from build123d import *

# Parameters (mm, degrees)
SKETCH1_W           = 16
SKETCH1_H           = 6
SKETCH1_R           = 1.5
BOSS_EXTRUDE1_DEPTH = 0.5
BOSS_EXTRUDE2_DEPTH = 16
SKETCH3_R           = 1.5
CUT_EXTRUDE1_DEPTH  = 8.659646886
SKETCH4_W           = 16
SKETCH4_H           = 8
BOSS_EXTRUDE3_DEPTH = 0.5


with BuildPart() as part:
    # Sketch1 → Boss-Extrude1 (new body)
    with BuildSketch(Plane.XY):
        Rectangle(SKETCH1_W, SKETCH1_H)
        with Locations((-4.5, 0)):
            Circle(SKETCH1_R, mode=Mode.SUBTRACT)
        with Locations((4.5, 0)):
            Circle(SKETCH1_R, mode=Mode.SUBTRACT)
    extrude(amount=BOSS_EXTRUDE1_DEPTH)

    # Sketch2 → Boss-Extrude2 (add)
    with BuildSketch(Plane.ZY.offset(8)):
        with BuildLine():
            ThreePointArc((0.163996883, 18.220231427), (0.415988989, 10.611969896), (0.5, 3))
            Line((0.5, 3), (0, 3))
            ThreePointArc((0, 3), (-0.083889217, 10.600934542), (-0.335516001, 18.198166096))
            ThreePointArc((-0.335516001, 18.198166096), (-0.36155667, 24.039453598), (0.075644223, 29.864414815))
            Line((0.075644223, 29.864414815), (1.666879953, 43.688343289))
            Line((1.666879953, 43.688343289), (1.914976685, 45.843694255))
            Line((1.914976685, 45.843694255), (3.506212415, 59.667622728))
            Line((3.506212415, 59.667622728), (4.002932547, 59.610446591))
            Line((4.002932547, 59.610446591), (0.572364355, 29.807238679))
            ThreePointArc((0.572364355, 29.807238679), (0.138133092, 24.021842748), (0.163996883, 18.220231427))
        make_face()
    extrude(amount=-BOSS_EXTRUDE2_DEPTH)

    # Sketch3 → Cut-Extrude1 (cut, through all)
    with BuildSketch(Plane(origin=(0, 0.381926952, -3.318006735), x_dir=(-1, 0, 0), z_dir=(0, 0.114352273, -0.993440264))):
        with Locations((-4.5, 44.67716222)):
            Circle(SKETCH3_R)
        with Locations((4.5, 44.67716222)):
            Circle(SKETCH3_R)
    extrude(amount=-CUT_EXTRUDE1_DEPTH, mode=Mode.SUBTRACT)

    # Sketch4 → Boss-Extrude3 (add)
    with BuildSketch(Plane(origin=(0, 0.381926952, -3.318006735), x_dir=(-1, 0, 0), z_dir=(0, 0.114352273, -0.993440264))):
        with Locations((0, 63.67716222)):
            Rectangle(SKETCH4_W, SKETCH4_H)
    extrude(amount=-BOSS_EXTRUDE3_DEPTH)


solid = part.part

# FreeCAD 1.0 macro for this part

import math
import FreeCAD as App
import Part
import Sketcher
from FreeCAD import Vector
Q = App.Units.Quantity

doc = App.newDocument("Part")
body = doc.addObject("PartDesign::Body", "Body")

sketch1 = body.newObject("Sketcher::SketchObject", "Sketch")
sketch1.AttachmentSupport = (doc.getObject("XY_Plane"), [""])
sketch1.MapMode = "FlatFace"
sketch1.addGeometry(Part.LineSegment(Vector(-8, 3, 0), Vector(-8, -3, 0)), False)
sketch1.addGeometry(Part.LineSegment(Vector(-8, -3, 0), Vector(8, -3, 0)), False)
sketch1.addGeometry(Part.LineSegment(Vector(8, -3, 0), Vector(8, 3, 0)), False)
sketch1.addGeometry(Part.LineSegment(Vector(8, 3, 0), Vector(-8, 3, 0)), False)
sketch1.addGeometry(Part.Circle(Vector(-4.5, 0, 0), Vector(0, 0, 1), 1.5), False)
sketch1.addGeometry(Part.Circle(Vector(4.5, 0, 0), Vector(0, 0, 1), 1.5), False)
sketch1.addConstraint(Sketcher.Constraint("Coincident", 0, 2, 1, 1))
sketch1.addConstraint(Sketcher.Constraint("Coincident", 1, 2, 2, 1))
sketch1.addConstraint(Sketcher.Constraint("Coincident", 2, 2, 3, 1))
sketch1.addConstraint(Sketcher.Constraint("Coincident", 3, 2, 0, 1))
sketch1.addConstraint(Sketcher.Constraint("Vertical", 0))
sketch1.addConstraint(Sketcher.Constraint("Horizontal", 1))
sketch1.addConstraint(Sketcher.Constraint("Vertical", 2))
sketch1.addConstraint(Sketcher.Constraint("Horizontal", 3))
sketch1.addConstraint(Sketcher.Constraint("Equal", 4, 5))
sketch1.addConstraint(Sketcher.Constraint("Symmetric", 4, 3, 5, 3, -1, 1))
sketch1.addConstraint(Sketcher.Constraint("Symmetric", 0, 2, 2, 2, -1, 1))
sketch1.addConstraint(Sketcher.Constraint("PointOnObject", 4, 3, -1))
sketch1.addConstraint(Sketcher.Constraint("Diameter", 4, Q("3 mm")))
sketch1.addConstraint(Sketcher.Constraint("DistanceX", 1, 1, 1, 2, Q("16 mm")))
sketch1.addConstraint(Sketcher.Constraint("DistanceY", 0, 2, 0, 1, Q("6 mm")))
sketch1.addConstraint(Sketcher.Constraint("DistanceX", 4, 3, 5, 3, Q("9 mm")))
pad1 = body.newObject("PartDesign::Pad", "Pad")
pad1.Profile = sketch1
pad1.Length = 0.5

sketch2 = body.newObject("Sketcher::SketchObject", "Sketch001")
sketch2.AttachmentSupport = (doc.getObject("YZ_Plane"), [""])
sketch2.MapMode = "FlatFace"
sketch2.AttachmentOffset = App.Placement(Vector(0, 0, -8), App.Rotation())
sketch2.addGeometry(Part.ArcOfCircle(Part.Circle(Vector(3, -344.4, 0), Vector(0, 0, 1), 344.9), math.radians(87.47), math.radians(90)), False)
sketch2.addGeometry(Part.ArcOfCircle(Part.Circle(Vector(21.4, 73.2, 0), Vector(0, 0, 1), 73.1), math.radians(-92.53), math.radians(-83.43)), False)
sketch2.addGeometry(Part.LineSegment(Vector(29.8, 0.6, 0), Vector(59.6, 4, 0)), False)
sketch2.addGeometry(Part.LineSegment(Vector(59.6, 4, 0), Vector(59.7, 3.5, 0)), False)
sketch2.addGeometry(Part.LineSegment(Vector(59.7, 3.5, 0), Vector(45.8, 1.9, 0)), False)
sketch2.addGeometry(Part.LineSegment(Vector(45.8, 1.9, 0), Vector(43.7, 1.7, 0)), False)
sketch2.addGeometry(Part.LineSegment(Vector(43.7, 1.7, 0), Vector(29.9, 0.1, 0)), False)
sketch2.addGeometry(Part.ArcOfCircle(Part.Circle(Vector(21.4, 73.2, 0), Vector(0, 0, 1), 73.6), math.radians(-92.53), math.radians(-83.43)), False)
sketch2.addGeometry(Part.ArcOfCircle(Part.Circle(Vector(3, -344.4, 0), Vector(0, 0, 1), 344.4), math.radians(87.47), math.radians(90)), False)
sketch2.addGeometry(Part.LineSegment(Vector(3, 0, 0), Vector(3, 0.5, 0)), False)
sketch2.addConstraint(Sketcher.Constraint("Tangent", 0, 1, 1, 1))
sketch2.addConstraint(Sketcher.Constraint("Tangent", 1, 2, 2, 1))
sketch2.addConstraint(Sketcher.Constraint("Coincident", 2, 2, 3, 1))
sketch2.addConstraint(Sketcher.Constraint("Coincident", 3, 2, 4, 1))
sketch2.addConstraint(Sketcher.Constraint("Coincident", 4, 2, 5, 1))
sketch2.addConstraint(Sketcher.Constraint("Coincident", 5, 2, 6, 1))
sketch2.addConstraint(Sketcher.Constraint("Tangent", 6, 2, 7, 2))
sketch2.addConstraint(Sketcher.Constraint("Tangent", 7, 1, 8, 1))
sketch2.addConstraint(Sketcher.Constraint("Coincident", 8, 2, 9, 1))
sketch2.addConstraint(Sketcher.Constraint("Coincident", 9, 2, 0, 2))
sketch2.addConstraint(Sketcher.Constraint("Vertical", 9))
sketch2.addConstraint(Sketcher.Constraint("Coincident", 7, 3, 1, 3))
sketch2.addConstraint(Sketcher.Constraint("Coincident", 8, 3, 0, 3))
sketch2.addConstraint(Sketcher.Constraint("PointOnObject", 8, 2, -1))
sketch2.addConstraint(Sketcher.Constraint("Perpendicular", 2, 3))
sketch2.addConstraint(Sketcher.Constraint("Perpendicular", 3, 4))
sketch2.addConstraint(Sketcher.Constraint("Parallel", 4, 5))
sketch2.addConstraint(Sketcher.Constraint("Parallel", 5, 6))
sketch2.addConstraint(Sketcher.Constraint("Vertical", 0, 3, 8, 2))
sketch2.addConstraint(Sketcher.Constraint("Equal", 4, 6))
sketch2.addConstraint(Sketcher.Constraint("Distance", 2, Q("30 mm")))
sketch2.addConstraint(Sketcher.Constraint("DistanceY", 9, 1, 9, 2, Q("0.5 mm")))
sketch2.addConstraint(Sketcher.Constraint("DistanceX", -1, 1, 0, 3, Q("3 mm")))
sketch2.addConstraint(Sketcher.Constraint("Radius", 1, Q("73.112018 mm")))
sketch2.addConstraint(Sketcher.Constraint("Radius", 0, Q("344.890167 mm")))
sketch2.addConstraint(Sketcher.Constraint("DistanceY", 8, 3, 2, 2, Q("348.393098 mm")))
sketch2.addConstraint(Sketcher.Constraint("Distance", 4, Q("13.915209 mm")))
sketch2.addConstraint(Sketcher.Constraint("DistanceX", -1, 1, 1, 2, Q("29.807239 mm")))
pad2 = body.newObject("PartDesign::Pad", "Pad001")
pad2.Profile = sketch2
pad2.Length = 16

sketch3 = body.newObject("Sketcher::SketchObject", "Sketch002")
sketch3.Placement = App.Placement(Vector(0, 0.381927, -3.318007), App.Rotation(Vector(-1, 0, 0), Vector(0, 0.993440264, 0.114352273), Vector(0, 0.114352273, -0.993440264), "ZXY"))
sketch3.addGeometry(Part.Circle(Vector(-4.5, 44.7, 0), Vector(0, 0, 1), 1.5), False)
sketch3.addGeometry(Part.Circle(Vector(4.5, 44.7, 0), Vector(0, 0, 1), 1.5), False)
sketch3.addConstraint(Sketcher.Constraint("Equal", 0, 1))
sketch3.addConstraint(Sketcher.Constraint("Symmetric", 0, 3, 1, 3, -2))
sketch3.addConstraint(Sketcher.Constraint("Diameter", 0, Q("3 mm")))
sketch3.addConstraint(Sketcher.Constraint("DistanceX", 0, 3, 1, 3, Q("9 mm")))
sketch3.addConstraint(Sketcher.Constraint("DistanceY", -1, 1, 0, 3, Q("44.677162 mm")))
pocket1 = body.newObject("PartDesign::Pocket", "Pocket")
pocket1.Profile = sketch3
pocket1.Type = "ThroughAll"

sketch4 = body.newObject("Sketcher::SketchObject", "Sketch003")
sketch4.Placement = App.Placement(Vector(0, 0.381927, -3.318007), App.Rotation(Vector(-1, 0, 0), Vector(0, 0.993440264, 0.114352273), Vector(0, 0.114352273, -0.993440264), "ZXY"))
sketch4.addGeometry(Part.LineSegment(Vector(-8, 68, 0), Vector(-8, 60, 0)), False)
sketch4.addGeometry(Part.LineSegment(Vector(-8, 60, 0), Vector(8, 60, 0)), False)
sketch4.addGeometry(Part.LineSegment(Vector(8, 60, 0), Vector(8, 68, 0)), False)
sketch4.addGeometry(Part.LineSegment(Vector(8, 68, 0), Vector(-8, 68, 0)), False)
sketch4.addConstraint(Sketcher.Constraint("Coincident", 0, 2, 1, 1))
sketch4.addConstraint(Sketcher.Constraint("Coincident", 1, 2, 2, 1))
sketch4.addConstraint(Sketcher.Constraint("Coincident", 2, 2, 3, 1))
sketch4.addConstraint(Sketcher.Constraint("Coincident", 3, 2, 0, 1))
sketch4.addConstraint(Sketcher.Constraint("Vertical", 0))
sketch4.addConstraint(Sketcher.Constraint("Horizontal", 1))
sketch4.addConstraint(Sketcher.Constraint("Vertical", 2))
sketch4.addConstraint(Sketcher.Constraint("Horizontal", 3))
sketch4.addConstraint(Sketcher.Constraint("DistanceX", 1, 1, 1, 2, Q("16 mm")))
sketch4.addConstraint(Sketcher.Constraint("DistanceY", 0, 2, 0, 1, Q("8 mm")))
sketch4.addConstraint(Sketcher.Constraint("DistanceX", 0, 2, -1, 1, Q("8 mm")))
sketch4.addConstraint(Sketcher.Constraint("DistanceY", -1, 1, 0, 2, Q("59.677162 mm")))
pad3 = body.newObject("PartDesign::Pad", "Pad002")
pad3.Profile = sketch4
pad3.Length = 0.5
pad3.Reversed = True

doc.recompute()
